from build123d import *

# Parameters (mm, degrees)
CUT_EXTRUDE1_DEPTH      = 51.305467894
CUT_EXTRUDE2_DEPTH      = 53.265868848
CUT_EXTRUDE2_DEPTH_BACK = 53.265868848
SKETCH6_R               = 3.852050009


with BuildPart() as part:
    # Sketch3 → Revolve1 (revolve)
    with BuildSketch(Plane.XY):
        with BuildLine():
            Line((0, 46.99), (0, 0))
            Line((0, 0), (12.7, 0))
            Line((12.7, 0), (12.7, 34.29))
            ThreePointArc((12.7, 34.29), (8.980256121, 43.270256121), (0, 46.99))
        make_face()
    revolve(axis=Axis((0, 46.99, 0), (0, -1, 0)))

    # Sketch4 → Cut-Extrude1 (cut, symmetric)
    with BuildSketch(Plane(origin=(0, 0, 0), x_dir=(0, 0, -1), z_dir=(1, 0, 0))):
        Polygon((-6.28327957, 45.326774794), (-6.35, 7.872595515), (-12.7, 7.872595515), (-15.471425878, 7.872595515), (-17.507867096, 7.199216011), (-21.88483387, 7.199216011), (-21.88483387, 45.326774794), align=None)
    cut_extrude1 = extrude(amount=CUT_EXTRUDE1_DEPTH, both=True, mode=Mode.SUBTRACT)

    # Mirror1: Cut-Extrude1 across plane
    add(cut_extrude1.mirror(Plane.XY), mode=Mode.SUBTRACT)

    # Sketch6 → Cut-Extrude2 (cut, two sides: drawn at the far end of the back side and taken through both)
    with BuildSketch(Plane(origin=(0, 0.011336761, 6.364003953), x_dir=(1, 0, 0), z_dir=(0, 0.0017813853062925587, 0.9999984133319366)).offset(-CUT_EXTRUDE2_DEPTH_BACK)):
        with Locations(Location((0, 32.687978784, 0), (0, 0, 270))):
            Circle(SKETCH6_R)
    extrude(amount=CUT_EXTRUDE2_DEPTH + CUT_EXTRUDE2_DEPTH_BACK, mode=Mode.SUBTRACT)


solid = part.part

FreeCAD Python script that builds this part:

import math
import FreeCAD as App
import Part
import Sketcher

V = App.Vector
Q = App.Units.Quantity

doc = App.newDocument("Part")
body = doc.addObject("PartDesign::Body", "Body")

sketch1 = body.newObject("Sketcher::SketchObject", "Sketch")
sketch1.AttachmentSupport = (doc.getObject("XY_Plane"), [""])
sketch1.MapMode = "FlatFace"
sketch1.addGeometry(Part.LineSegment(V(0, 46.99, 0), V(0, 0, 0)), False)
sketch1.addGeometry(Part.LineSegment(V(0, 0, 0), V(12.7, 0, 0)), False)
sketch1.addGeometry(Part.LineSegment(V(12.7, 0, 0), V(12.7, 34.29, 0)), False)
sketch1.addGeometry(Part.ArcOfCircle(Part.Circle(V(0, 34.29, 0), V(0, 0, 1), 12.7), math.radians(0), math.radians(90)), False)
sketch1.addConstraint(Sketcher.Constraint("Coincident", 0, 2, 1, 1))
sketch1.addConstraint(Sketcher.Constraint("Coincident", 1, 2, 2, 1))
sketch1.addConstraint(Sketcher.Constraint("Tangent", 2, 2, 3, 1))
sketch1.addConstraint(Sketcher.Constraint("Coincident", 3, 2, 0, 1))
sketch1.addConstraint(Sketcher.Constraint("Vertical", 0))
sketch1.addConstraint(Sketcher.Constraint("Horizontal", 1))
sketch1.addConstraint(Sketcher.Constraint("Vertical", 2))
sketch1.addConstraint(Sketcher.Constraint("Coincident", 0, 2, -1, 1))
sketch1.addConstraint(Sketcher.Constraint("PointOnObject", 3, 3, -2))
sketch1.addConstraint(Sketcher.Constraint("Radius", 3, Q("0.5 in")))
sketch1.addConstraint(Sketcher.Constraint("DistanceY", 0, 2, 0, 1, Q("1.85 in")))
revolution = body.newObject("PartDesign::Revolution", "Revolution")
revolution.Profile = sketch1
revolution.ReferenceAxis = (sketch1, ["V_Axis"])
revolution.Angle = 360

sketch2 = body.newObject("Sketcher::SketchObject", "Sketch001")
sketch2.AttachmentSupport = (doc.getObject("YZ_Plane"), [""])
sketch2.MapMode = "FlatFace"
sketch2.addGeometry(Part.LineSegment(V(7.872596, 6.35, 0), V(45.326775, 6.28328, 0)), False)
sketch2.addGeometry(Part.LineSegment(V(45.326775, 6.28328, 0), V(45.326775, 21.884834, 0)), False)
sketch2.addGeometry(Part.LineSegment(V(45.326775, 21.884834, 0), V(7.199216, 21.884834, 0)), False)
sketch2.addGeometry(Part.LineSegment(V(7.199216, 21.884834, 0), V(7.199216, 17.507867, 0)), False)
sketch2.addGeometry(Part.LineSegment(V(7.199216, 17.507867, 0), V(7.872596, 15.471426, 0)), False)
sketch2.addGeometry(Part.LineSegment(V(7.872596, 15.471426, 0), V(7.872596, 6.35, 0)), False)
sketch2.addConstraint(Sketcher.Constraint("Coincident", 0, 2, 1, 1))
sketch2.addConstraint(Sketcher.Constraint("Coincident", 1, 2, 2, 1))
sketch2.addConstraint(Sketcher.Constraint("Coincident", 2, 2, 3, 1))
sketch2.addConstraint(Sketcher.Constraint("Coincident", 3, 2, 4, 1))
sketch2.addConstraint(Sketcher.Constraint("Coincident", 4, 2, 5, 1))
sketch2.addConstraint(Sketcher.Constraint("Coincident", 5, 2, 0, 1))
sketch2.addConstraint(Sketcher.Constraint("Vertical", 1))
sketch2.addConstraint(Sketcher.Constraint("Horizontal", 2))
sketch2.addConstraint(Sketcher.Constraint("Vertical", 3))
sketch2.addConstraint(Sketcher.Constraint("Vertical", 5))
sketch2.addConstraint(Sketcher.Constraint("DistanceY", -1, 1, 5, 2, Q("0.25 in")))
sketch2.addConstraint(Sketcher.Constraint("DistanceX", 2, 2, 2, 1, Q("38.127559 mm")))
sketch2.addConstraint(Sketcher.Constraint("Distance", 0, Q("37.454239 mm")))
sketch2.addConstraint(Sketcher.Constraint("DistanceY", 1, 1, 1, 2, Q("15.601554 mm")))
sketch2.addConstraint(Sketcher.Constraint("DistanceY", 3, 2, 3, 1, Q("4.376967 mm")))
sketch2.addConstraint(Sketcher.Constraint("DistanceY", 5, 2, 5, 1, Q("9.121426 mm")))
sketch2.addConstraint(Sketcher.Constraint("DistanceY", -1, 1, 0, 2, Q("6.28328 mm")))
sketch2.addConstraint(Sketcher.Constraint("DistanceX", -1, 1, 0, 2, Q("45.326775 mm")))
pocket1 = body.newObject("PartDesign::Pocket", "Pocket")
pocket1.Profile = sketch2
pocket1.Length = 102.610936
pocket1.Midplane = True
doc.recompute()

mirrored = body.newObject("PartDesign::Mirrored", "Mirrored")
mirrored.Originals = [pocket1]
mirrored.MirrorPlane = (doc.getObject("XY_Plane"), [""])
body.Tip = mirrored

sketch3 = body.newObject("Sketcher::SketchObject", "Sketch002")
sketch3.Placement = App.Placement(V(0, 0.011337, 6.364004), App.Rotation(V(1, 0, 0), V(0, 0.999998413, -0.001781385), V(0, 0.001781385, 0.999998413), "ZXY"))
sketch3.addGeometry(Part.Circle(V(0, 32.687979, 0), V(0, 0, 1), 3.85205), False)
sketch3.addConstraint(Sketcher.Constraint("PointOnObject", 0, 3, -2))
sketch3.addConstraint(Sketcher.Constraint("Diameter", 0, Q("7.7041 mm")))
sketch3.addConstraint(Sketcher.Constraint("DistanceY", -1, 1, 0, 3, Q("32.687979 mm")))
pocket2 = body.newObject("PartDesign::Pocket", "Pocket001")
pocket2.Profile = sketch3
pocket2.Type = "ThroughAll"
pocket2.Midplane = True

doc.recompute()
